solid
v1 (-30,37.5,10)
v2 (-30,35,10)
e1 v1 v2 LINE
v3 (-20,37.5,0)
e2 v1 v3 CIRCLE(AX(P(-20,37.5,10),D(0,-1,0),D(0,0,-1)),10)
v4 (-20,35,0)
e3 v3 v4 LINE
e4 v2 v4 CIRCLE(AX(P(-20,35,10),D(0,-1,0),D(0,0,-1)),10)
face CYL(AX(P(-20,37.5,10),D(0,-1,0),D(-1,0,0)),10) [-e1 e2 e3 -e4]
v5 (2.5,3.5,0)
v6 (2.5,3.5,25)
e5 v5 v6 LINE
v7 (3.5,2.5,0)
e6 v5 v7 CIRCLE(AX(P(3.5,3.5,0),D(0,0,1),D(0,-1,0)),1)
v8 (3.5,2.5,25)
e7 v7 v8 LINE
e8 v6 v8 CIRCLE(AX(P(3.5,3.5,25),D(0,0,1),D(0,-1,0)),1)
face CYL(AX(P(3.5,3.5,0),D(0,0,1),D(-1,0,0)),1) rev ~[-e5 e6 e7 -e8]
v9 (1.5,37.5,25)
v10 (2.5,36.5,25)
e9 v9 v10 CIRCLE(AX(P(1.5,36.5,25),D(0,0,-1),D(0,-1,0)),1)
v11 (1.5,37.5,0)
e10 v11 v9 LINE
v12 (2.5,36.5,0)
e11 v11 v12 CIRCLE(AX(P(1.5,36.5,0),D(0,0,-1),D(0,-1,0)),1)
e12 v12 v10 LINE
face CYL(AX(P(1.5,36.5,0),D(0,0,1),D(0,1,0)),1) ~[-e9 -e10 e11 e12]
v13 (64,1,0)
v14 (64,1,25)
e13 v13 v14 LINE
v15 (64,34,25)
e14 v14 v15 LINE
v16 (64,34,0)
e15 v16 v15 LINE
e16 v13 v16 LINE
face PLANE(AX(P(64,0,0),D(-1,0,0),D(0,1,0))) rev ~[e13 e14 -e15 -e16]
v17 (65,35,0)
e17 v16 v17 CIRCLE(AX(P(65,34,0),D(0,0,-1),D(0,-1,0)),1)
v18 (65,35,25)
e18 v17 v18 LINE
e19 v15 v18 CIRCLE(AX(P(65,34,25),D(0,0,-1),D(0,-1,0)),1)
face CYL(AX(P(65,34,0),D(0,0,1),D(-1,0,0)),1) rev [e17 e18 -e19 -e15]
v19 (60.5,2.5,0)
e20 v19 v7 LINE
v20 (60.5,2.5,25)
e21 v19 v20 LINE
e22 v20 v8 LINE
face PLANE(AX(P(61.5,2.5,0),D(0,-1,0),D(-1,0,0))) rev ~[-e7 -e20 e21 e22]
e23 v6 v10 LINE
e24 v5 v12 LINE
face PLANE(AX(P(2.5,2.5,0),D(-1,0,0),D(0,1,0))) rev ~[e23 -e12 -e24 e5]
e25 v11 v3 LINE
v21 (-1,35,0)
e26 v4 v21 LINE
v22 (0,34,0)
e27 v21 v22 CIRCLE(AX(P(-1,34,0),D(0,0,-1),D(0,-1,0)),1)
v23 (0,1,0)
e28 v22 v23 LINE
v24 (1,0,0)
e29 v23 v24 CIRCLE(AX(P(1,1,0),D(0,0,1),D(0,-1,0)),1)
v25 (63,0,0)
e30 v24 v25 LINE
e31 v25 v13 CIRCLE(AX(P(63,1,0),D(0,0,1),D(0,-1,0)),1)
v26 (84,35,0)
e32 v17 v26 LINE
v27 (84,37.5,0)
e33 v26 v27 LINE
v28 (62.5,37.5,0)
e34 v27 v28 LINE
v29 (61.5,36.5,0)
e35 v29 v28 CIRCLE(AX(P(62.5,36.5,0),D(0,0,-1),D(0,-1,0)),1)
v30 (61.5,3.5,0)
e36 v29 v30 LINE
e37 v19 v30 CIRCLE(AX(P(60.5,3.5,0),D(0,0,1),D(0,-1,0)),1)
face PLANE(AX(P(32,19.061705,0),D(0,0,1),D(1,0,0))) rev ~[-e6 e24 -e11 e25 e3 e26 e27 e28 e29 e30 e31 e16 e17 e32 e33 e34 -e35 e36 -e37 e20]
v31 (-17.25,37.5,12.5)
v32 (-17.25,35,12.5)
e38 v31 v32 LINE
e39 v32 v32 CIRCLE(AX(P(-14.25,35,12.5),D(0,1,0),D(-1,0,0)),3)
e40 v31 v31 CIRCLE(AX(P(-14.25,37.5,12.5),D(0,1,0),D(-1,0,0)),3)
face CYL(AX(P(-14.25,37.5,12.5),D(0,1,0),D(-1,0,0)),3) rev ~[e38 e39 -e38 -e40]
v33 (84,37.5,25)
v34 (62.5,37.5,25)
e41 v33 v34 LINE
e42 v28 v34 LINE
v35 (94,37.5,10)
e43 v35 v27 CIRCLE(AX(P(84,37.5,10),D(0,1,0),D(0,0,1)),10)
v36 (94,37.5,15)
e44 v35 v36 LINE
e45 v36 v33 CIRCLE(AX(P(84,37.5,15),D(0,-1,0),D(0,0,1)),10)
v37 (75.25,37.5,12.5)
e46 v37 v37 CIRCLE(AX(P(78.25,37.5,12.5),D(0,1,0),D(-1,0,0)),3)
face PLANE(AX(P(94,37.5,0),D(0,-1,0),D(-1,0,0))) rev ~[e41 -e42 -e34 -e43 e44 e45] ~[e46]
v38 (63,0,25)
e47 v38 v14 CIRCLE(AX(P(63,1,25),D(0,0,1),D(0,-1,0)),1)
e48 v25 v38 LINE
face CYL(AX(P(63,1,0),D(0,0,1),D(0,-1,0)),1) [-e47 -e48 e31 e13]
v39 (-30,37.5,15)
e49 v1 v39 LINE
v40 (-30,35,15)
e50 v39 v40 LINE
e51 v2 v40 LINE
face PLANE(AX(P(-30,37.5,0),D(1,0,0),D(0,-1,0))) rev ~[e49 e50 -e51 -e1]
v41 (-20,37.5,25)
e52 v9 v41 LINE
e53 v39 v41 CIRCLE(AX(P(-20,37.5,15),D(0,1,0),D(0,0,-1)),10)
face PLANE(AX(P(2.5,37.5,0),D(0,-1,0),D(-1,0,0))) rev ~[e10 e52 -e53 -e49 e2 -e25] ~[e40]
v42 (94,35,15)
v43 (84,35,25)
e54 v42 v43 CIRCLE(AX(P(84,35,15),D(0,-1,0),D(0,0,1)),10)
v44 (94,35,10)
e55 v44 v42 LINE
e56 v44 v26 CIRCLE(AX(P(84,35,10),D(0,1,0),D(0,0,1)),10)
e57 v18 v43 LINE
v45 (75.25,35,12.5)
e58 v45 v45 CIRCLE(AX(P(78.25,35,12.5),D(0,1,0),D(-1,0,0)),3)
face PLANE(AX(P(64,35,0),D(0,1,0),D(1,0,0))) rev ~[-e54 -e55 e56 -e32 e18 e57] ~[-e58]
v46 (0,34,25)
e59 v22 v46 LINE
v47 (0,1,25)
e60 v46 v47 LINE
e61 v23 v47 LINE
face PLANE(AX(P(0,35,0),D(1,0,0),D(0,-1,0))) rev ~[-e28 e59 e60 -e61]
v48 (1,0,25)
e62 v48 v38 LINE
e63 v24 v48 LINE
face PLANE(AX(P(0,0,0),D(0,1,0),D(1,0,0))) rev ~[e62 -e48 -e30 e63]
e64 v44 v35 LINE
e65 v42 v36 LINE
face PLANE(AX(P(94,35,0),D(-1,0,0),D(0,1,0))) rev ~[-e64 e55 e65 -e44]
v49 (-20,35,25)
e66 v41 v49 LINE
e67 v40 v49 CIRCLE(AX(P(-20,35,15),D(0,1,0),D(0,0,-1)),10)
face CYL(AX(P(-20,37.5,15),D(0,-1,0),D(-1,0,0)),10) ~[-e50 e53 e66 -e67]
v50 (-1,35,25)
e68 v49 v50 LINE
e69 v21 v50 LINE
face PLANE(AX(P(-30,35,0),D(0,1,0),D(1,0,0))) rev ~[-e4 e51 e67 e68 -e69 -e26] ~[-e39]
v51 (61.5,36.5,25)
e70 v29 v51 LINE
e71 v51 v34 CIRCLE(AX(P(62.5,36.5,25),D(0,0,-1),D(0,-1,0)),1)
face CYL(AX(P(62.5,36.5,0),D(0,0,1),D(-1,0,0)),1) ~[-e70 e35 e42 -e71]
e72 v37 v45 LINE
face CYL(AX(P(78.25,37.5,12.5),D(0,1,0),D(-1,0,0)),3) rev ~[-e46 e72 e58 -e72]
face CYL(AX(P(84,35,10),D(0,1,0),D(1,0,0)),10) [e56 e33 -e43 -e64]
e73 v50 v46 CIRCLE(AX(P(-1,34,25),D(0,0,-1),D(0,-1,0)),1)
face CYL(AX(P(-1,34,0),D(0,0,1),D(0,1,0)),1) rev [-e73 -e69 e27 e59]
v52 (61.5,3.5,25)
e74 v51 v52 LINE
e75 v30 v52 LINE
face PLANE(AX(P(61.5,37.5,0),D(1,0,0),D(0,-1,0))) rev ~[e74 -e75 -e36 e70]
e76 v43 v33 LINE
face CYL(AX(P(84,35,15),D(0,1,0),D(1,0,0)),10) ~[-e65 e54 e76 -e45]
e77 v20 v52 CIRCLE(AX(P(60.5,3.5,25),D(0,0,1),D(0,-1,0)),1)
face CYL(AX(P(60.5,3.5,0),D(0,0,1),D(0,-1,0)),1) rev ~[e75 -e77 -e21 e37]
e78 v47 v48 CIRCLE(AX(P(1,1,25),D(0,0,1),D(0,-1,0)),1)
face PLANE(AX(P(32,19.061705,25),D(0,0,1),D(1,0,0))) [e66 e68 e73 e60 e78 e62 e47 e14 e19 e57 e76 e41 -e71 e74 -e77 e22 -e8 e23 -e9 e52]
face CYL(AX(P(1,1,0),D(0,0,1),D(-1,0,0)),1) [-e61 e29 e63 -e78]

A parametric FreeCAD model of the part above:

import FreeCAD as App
import Part
import Sketcher

V = App.Vector


def edges_at(feature, points):
    """Names of the edges that pass closest to the given points."""
    edges = feature.Shape.Edges
    near = lambda p: min(range(len(edges)), key=lambda i: edges[i].distToShape(Part.Vertex(*p))[0])
    return sorted({f"Edge{near(p) + 1}" for p in points})

doc = App.newDocument("Part")
body = doc.addObject("PartDesign::Body", "Body")

# Sketch on XY plane
sketch1 = body.newObject("Sketcher::SketchObject", "Sketch")
sketch1.AttachmentSupport = (doc.getObject("XY_Plane"), [""])
sketch1.MapMode = "FlatFace"
sketch1.addGeometry([
    Part.LineSegment(V(-30, 37.5, 0), V(-30, 35, 0)),  # 0
    Part.LineSegment(V(-30, 35, 0), V(0, 35, 0)),  # 1
    Part.LineSegment(V(0, 35, 0), V(0, 0, 0)),  # 2
    Part.LineSegment(V(0, 0, 0), V(64, 0, 0)),  # 3
    Part.LineSegment(V(64, 0, 0), V(64, 35, 0)),  # 4
    Part.LineSegment(V(64, 35, 0), V(94, 35, 0)),  # 5
    Part.LineSegment(V(94, 35, 0), V(94, 37.5, 0)),  # 6
    Part.LineSegment(V(94, 37.5, 0), V(61.5, 37.5, 0)),  # 7
    Part.LineSegment(V(61.5, 37.5, 0), V(61.5, 2.5, 0)),  # 8
    Part.LineSegment(V(61.5, 2.5, 0), V(2.5, 2.5, 0)),  # 9
    Part.LineSegment(V(2.5, 2.5, 0), V(2.5, 37.5, 0)),  # 10
    Part.LineSegment(V(2.5, 37.5, 0), V(-30, 37.5, 0)),  # 11
], False)
sketch1.addConstraint([
    Sketcher.Constraint("Coincident", 0, 2, 1, 1),
    Sketcher.Constraint("Coincident", 1, 2, 2, 1),
    Sketcher.Constraint("Coincident", 2, 2, 3, 1),
    Sketcher.Constraint("Coincident", 3, 2, 4, 1),
    Sketcher.Constraint("Coincident", 4, 2, 5, 1),
    Sketcher.Constraint("Coincident", 5, 2, 6, 1),
    Sketcher.Constraint("Coincident", 6, 2, 7, 1),
    Sketcher.Constraint("Coincident", 7, 2, 8, 1),
    Sketcher.Constraint("Coincident", 8, 2, 9, 1),
    Sketcher.Constraint("Coincident", 9, 2, 10, 1),
    Sketcher.Constraint("Coincident", 10, 2, 11, 1),
    Sketcher.Constraint("Coincident", 11, 2, 0, 1),
    Sketcher.Constraint("Vertical", 0),
    Sketcher.Constraint("Horizontal", 1),
    Sketcher.Constraint("Vertical", 2),
    Sketcher.Constraint("Horizontal", 3),
    Sketcher.Constraint("Vertical", 4),
    Sketcher.Constraint("Horizontal", 5),
    Sketcher.Constraint("Vertical", 6),
    Sketcher.Constraint("Horizontal", 7),
    Sketcher.Constraint("Vertical", 8),
    Sketcher.Constraint("Horizontal", 9),
    Sketcher.Constraint("Vertical", 10),
    Sketcher.Constraint("Horizontal", 11),
    Sketcher.Constraint("Coincident", 2, 2, -1, 1),
    Sketcher.Constraint("Horizontal", 1, 2, 4, 2),
    Sketcher.Constraint("Horizontal", 7, 2, 10, 2),
    Sketcher.Constraint("Equal", 1, 5),
    Sketcher.Constraint("Equal", 7, 11),
    Sketcher.Constraint("Equal", 4, 8),
    Sketcher.Constraint("DistanceX", 1, 1, 1, 2, 30.0),
    Sketcher.Constraint("DistanceX", 3, 1, 3, 2, 64.0),
    Sketcher.Constraint("DistanceX", 9, 2, 9, 1, 59.0),
    Sketcher.Constraint("DistanceY", 2, 2, 2, 1, 35.0),
    Sketcher.Constraint("DistanceY", 0, 2, 0, 1, 2.5),
])
pad1 = body.newObject("PartDesign::Pad", "Pad")
pad1.Profile = sketch1
pad1.Length = 25
doc.recompute()

fillet = body.newObject("PartDesign::Fillet", "Fillet")
fillet.Base = (pad1, edges_at(pad1, [
    (-30, 36.25, 25),
    (-30, 36.25, 0),
    (94, 36.25, 0),
    (94, 36.25, 25),
]))
fillet.Radius = 10
doc.recompute()

fillet2 = body.newObject("PartDesign::Fillet", "Fillet001")
fillet2.Base = (fillet, edges_at(fillet, [
    (64, 35, 12.5),
    (64, 0, 12.5),
    (0, 0, 12.5),
    (0, 35, 12.5),
    (2.5, 37.5, 12.5),
    (2.5, 2.5, 12.5),
    (61.5, 2.5, 12.5),
    (61.5, 37.5, 12.5),
]))
fillet2.Radius = 1

# Sketch on XZ plane
sketch2 = body.newObject("Sketcher::SketchObject", "Sketch001")
sketch2.AttachmentSupport = (doc.getObject("XZ_Plane"), [""])
sketch2.MapMode = "FlatFace"
sketch2.AttachmentOffset = App.Placement(V(0, 0, -37.5), App.Rotation())
sketch2.addGeometry([
    Part.Circle(V(-14.2, 12.5, 0), V(0, 0, 1), 3),
    Part.Circle(V(78.2, 12.5, 0), V(0, 0, 1), 3),
], False)
sketch2.addConstraint([
    Sketcher.Constraint("Equal", 0, 1),
    Sketcher.Constraint("Horizontal", 0, 3, 1, 3),
    Sketcher.Constraint("Diameter", 0, 6.0),
    Sketcher.Constraint("DistanceY", -1, 1, 0, 3, 12.5),
    Sketcher.Constraint("DistanceX", 0, 3, 1, 3, 92.5),
    Sketcher.Constraint("DistanceX", 0, 3, -1, 1, 14.25),
])
pocket1 = body.newObject("PartDesign::Pocket", "Pocket")
pocket1.Profile = sketch2
pocket1.Length = 25
pocket1.Reversed = True

doc.recompute()
